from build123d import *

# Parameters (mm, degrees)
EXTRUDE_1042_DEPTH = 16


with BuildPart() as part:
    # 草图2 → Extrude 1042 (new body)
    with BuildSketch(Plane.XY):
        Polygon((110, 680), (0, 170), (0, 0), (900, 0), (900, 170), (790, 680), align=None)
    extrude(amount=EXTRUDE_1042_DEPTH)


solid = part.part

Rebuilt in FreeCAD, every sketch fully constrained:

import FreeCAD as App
import Part
import Sketcher
from FreeCAD import Vector
Q = App.Units.Quantity


def add_polygon(sketch, points):
    """Adds a closed chain of lines whose ends are joined by coincident constraints."""
    first, n = sketch.GeometryCount, len(points)
    for a, b in zip(points, points[1:] + points[:1]):
        sketch.addGeometry(Part.LineSegment(App.Vector(*a, 0), App.Vector(*b, 0)), False)
    for i in range(n):
        sketch.addConstraint(Sketcher.Constraint("Coincident", first + i, 2, first + (i + 1) % n, 1))

doc = App.newDocument("Part")
params = doc.addObject("Spreadsheet::Sheet", "Params")
for row, (alias, value) in enumerate([
    ("sketch1_width", "900 mm"),
    ("sketch1_width2", "680 mm"),
    ("sketch1_height", "170 mm"),
    ("pad1_length", "16 mm"),
], start=1):
    params.set(f"A{row}", alias)
    params.set(f"B{row}", "=" + value)
    params.setAlias(f"B{row}", alias)

body = doc.addObject("PartDesign::Body", "Body")

sketch1 = doc.addObject("Sketcher::SketchObject", "Sketch")
body.addObject(sketch1)
sketch1.AttachmentSupport = (doc.XY_Plane, [""])
sketch1.MapMode = "FlatFace"
add_polygon(sketch1, [(110, 680), (0, 170), (0, 0), (900, 0), (900, 170), (790, 680)])
sketch1.addConstraint([
    Sketcher.Constraint("Vertical", 1),
    Sketcher.Constraint("Horizontal", 2),
    Sketcher.Constraint("Vertical", 3),
    Sketcher.Constraint("Horizontal", 5),
    Sketcher.Constraint("Coincident", 1, 2, -1, 1),
    Sketcher.Constraint("Horizontal", 0, 2, 3, 2),
    Sketcher.Constraint("Equal", 0, 4),
    Sketcher.Constraint("DistanceX", 2, 1, 2, 2, Q("900 mm")),
    Sketcher.Constraint("DistanceX", 5, 2, 5, 1, Q("680 mm")),
    Sketcher.Constraint("DistanceY", 1, 2, 1, 1, Q("170 mm")),
    Sketcher.Constraint("DistanceY", -1, 1, 4, 2, Q("680 mm")),
])
sketch1.setExpression("Constraints[13]", "Params.sketch1_width")
sketch1.setExpression("Constraints[14]", "Params.sketch1_width2")
sketch1.setExpression("Constraints[15]", "Params.sketch1_height")
pad1 = doc.addObject("PartDesign::Pad", "Pad")
body.addObject(pad1)
pad1.Profile = sketch1
pad1.setExpression("Length", "Params.pad1_length")

doc.recompute()
